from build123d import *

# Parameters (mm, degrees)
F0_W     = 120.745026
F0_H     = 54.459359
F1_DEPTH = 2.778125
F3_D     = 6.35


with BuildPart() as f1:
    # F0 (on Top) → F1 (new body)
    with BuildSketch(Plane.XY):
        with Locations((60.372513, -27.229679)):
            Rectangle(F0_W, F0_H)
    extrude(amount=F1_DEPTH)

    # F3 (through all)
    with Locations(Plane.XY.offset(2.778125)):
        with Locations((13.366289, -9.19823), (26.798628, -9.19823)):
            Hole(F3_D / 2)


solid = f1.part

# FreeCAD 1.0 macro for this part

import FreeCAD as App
import Part
import Sketcher
Q = App.Units.Quantity


def add_polygon(sketch, points):
    """Adds a closed chain of lines whose ends are joined by coincident constraints."""
    first, n = sketch.GeometryCount, len(points)
    for a, b in zip(points, points[1:] + points[:1]):
        sketch.addGeometry(Part.LineSegment(App.Vector(*a, 0), App.Vector(*b, 0)), False)
    for i in range(n):
        sketch.addConstraint(Sketcher.Constraint("Coincident", first + i, 2, first + (i + 1) % n, 1))

doc = App.newDocument("Part")
body = doc.addObject("PartDesign::Body", "Body")

# Sketch on XY plane
sketch1 = body.newObject("Sketcher::SketchObject", "Sketch")
sketch1.AttachmentSupport = (doc.getObject("XY_Plane"), [""])
sketch1.MapMode = "FlatFace"
add_polygon(sketch1, [(0, 0), (0, -54), (121, -54), (121, 0)])  # lines 0-3
sketch1.addConstraint([
    Sketcher.Constraint("Vertical", 0),
    Sketcher.Constraint("Horizontal", 1),
    Sketcher.Constraint("Vertical", 2),
    Sketcher.Constraint("Horizontal", 3),
    Sketcher.Constraint("Coincident", 3, 2, -1, 1),
    Sketcher.Constraint("DistanceY", 0, 2, 0, 1, Q("54.459359 mm")),
    Sketcher.Constraint("DistanceX", 1, 1, 1, 2, Q("120.745026 mm")),
])
pad1 = body.newObject("PartDesign::Pad", "Pad")
pad1.Profile = sketch1
pad1.Length = Q("0.109375 in")

# Sketch on XY plane
sketch2 = body.newObject("Sketcher::SketchObject", "Sketch001")
sketch2.AttachmentSupport = (doc.getObject("XY_Plane"), [""])
sketch2.MapMode = "FlatFace"
sketch2.AttachmentOffset = App.Placement(App.Vector(0, 0, 0.109375 * 25.4), App.Rotation())
sketch2.addGeometry([
    Part.Circle(App.Vector(13.4, -9.2, 0), App.Vector(0, 0, 1), 3.2),
    Part.Circle(App.Vector(26.8, -9.2, 0), App.Vector(0, 0, 1), 3.2),
], False)
sketch2.addConstraint([
    Sketcher.Constraint("Equal", 0, 1),
    Sketcher.Constraint("Horizontal", 0, 3, 1, 3),
    Sketcher.Constraint("Diameter", 0, Q("0.25 in")),
    Sketcher.Constraint("DistanceX", -1, 1, 0, 3, Q("13.366289 mm")),
    Sketcher.Constraint("DistanceY", 0, 3, -1, 1, Q("9.19823 mm")),
    Sketcher.Constraint("DistanceX", -1, 1, 1, 3, Q("26.798628 mm")),
])
doc.recompute()
hole = body.newObject("PartDesign::Hole", "Hole")
hole.Profile = sketch2
hole.ThreadType = "None"
hole.Diameter = Q("0.25 in")
hole.DepthType = "ThroughAll"

doc.recompute()
